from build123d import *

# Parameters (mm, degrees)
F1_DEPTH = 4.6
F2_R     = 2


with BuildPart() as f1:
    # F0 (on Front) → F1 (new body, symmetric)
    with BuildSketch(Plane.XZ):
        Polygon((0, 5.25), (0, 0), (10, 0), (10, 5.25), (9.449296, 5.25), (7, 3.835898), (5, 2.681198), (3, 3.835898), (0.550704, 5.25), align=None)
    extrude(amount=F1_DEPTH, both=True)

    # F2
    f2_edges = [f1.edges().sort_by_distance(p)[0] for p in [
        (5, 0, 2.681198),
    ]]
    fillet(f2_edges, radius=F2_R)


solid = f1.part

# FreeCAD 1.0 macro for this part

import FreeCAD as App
import Part
import Sketcher

V = App.Vector
Q = App.Units.Quantity


def edges_at(feature, points):
    """Names of the edges that pass closest to the given points."""
    edges = feature.Shape.Edges
    near = lambda p: min(range(len(edges)), key=lambda i: edges[i].distToShape(Part.Vertex(*p))[0])
    return sorted({f"Edge{near(p) + 1}" for p in points})

doc = App.newDocument("Part")
body = doc.addObject("PartDesign::Body", "Body")

# Sketch on XZ plane
sketch1 = body.newObject("Sketcher::SketchObject", "Sketch")
sketch1.AttachmentSupport = (doc.getObject("XZ_Plane"), [""])
sketch1.MapMode = "FlatFace"
sketch1.addGeometry([
    Part.LineSegment(V(0, 5.2, 0), V(0, 0, 0)),  # 0
    Part.LineSegment(V(0, 0, 0), V(10, 0, 0)),  # 1
    Part.LineSegment(V(10, 0, 0), V(10, 5.2, 0)),  # 2
    Part.LineSegment(V(10, 5.2, 0), V(9.4, 5.2, 0)),  # 3
    Part.LineSegment(V(9.4, 5.2, 0), V(7, 3.8, 0)),  # 4
    Part.LineSegment(V(7, 3.8, 0), V(5, 2.7, 0)),  # 5
    Part.LineSegment(V(5, 2.7, 0), V(3, 3.8, 0)),  # 6
    Part.LineSegment(V(3, 3.8, 0), V(0.6, 5.2, 0)),  # 7
    Part.LineSegment(V(0.6, 5.2, 0), V(0, 5.2, 0)),  # 8
], False)
sketch1.addConstraint([
    Sketcher.Constraint("Coincident", 0, 2, 1, 1),
    Sketcher.Constraint("Coincident", 1, 2, 2, 1),
    Sketcher.Constraint("Coincident", 2, 2, 3, 1),
    Sketcher.Constraint("Coincident", 3, 2, 4, 1),
    Sketcher.Constraint("Coincident", 4, 2, 5, 1),
    Sketcher.Constraint("Coincident", 5, 2, 6, 1),
    Sketcher.Constraint("Coincident", 6, 2, 7, 1),
    Sketcher.Constraint("Coincident", 7, 2, 8, 1),
    Sketcher.Constraint("Coincident", 8, 2, 0, 1),
    Sketcher.Constraint("Vertical", 0),
    Sketcher.Constraint("Horizontal", 1),
    Sketcher.Constraint("Vertical", 2),
    Sketcher.Constraint("Horizontal", 3),
    Sketcher.Constraint("Horizontal", 8),
    Sketcher.Constraint("Coincident", 0, 2, -1, 1),
    Sketcher.Constraint("Parallel", 4, 5),
    Sketcher.Constraint("Parallel", 6, 7),
    Sketcher.Constraint("Horizontal", 4, 2, 6, 2),
    Sketcher.Constraint("Horizontal", 3, 2, 7, 2),
    Sketcher.Constraint("Equal", 3, 8),
    Sketcher.Constraint("Equal", 5, 6),
    Sketcher.Constraint("DistanceX", 1, 1, 1, 2, 10.0),
    Sketcher.Constraint("Angle", 4, Q("-149.999995 deg")),
    Sketcher.Constraint("DistanceX", -1, 1, 4, 2, 7.0),
    Sketcher.Constraint("DistanceY", 0, 2, 0, 1, 5.25),
    Sketcher.Constraint("DistanceY", -1, 1, 5, 2, 2.681198),
])
pad1 = body.newObject("PartDesign::Pad", "Pad")
pad1.Profile = sketch1
pad1.Length = 9.2
pad1.Midplane = True
doc.recompute()

fillet = body.newObject("PartDesign::Fillet", "Fillet")
fillet.Base = (pad1, edges_at(pad1, [(5, 0, 2.681)]))
fillet.Radius = 2

doc.recompute()
